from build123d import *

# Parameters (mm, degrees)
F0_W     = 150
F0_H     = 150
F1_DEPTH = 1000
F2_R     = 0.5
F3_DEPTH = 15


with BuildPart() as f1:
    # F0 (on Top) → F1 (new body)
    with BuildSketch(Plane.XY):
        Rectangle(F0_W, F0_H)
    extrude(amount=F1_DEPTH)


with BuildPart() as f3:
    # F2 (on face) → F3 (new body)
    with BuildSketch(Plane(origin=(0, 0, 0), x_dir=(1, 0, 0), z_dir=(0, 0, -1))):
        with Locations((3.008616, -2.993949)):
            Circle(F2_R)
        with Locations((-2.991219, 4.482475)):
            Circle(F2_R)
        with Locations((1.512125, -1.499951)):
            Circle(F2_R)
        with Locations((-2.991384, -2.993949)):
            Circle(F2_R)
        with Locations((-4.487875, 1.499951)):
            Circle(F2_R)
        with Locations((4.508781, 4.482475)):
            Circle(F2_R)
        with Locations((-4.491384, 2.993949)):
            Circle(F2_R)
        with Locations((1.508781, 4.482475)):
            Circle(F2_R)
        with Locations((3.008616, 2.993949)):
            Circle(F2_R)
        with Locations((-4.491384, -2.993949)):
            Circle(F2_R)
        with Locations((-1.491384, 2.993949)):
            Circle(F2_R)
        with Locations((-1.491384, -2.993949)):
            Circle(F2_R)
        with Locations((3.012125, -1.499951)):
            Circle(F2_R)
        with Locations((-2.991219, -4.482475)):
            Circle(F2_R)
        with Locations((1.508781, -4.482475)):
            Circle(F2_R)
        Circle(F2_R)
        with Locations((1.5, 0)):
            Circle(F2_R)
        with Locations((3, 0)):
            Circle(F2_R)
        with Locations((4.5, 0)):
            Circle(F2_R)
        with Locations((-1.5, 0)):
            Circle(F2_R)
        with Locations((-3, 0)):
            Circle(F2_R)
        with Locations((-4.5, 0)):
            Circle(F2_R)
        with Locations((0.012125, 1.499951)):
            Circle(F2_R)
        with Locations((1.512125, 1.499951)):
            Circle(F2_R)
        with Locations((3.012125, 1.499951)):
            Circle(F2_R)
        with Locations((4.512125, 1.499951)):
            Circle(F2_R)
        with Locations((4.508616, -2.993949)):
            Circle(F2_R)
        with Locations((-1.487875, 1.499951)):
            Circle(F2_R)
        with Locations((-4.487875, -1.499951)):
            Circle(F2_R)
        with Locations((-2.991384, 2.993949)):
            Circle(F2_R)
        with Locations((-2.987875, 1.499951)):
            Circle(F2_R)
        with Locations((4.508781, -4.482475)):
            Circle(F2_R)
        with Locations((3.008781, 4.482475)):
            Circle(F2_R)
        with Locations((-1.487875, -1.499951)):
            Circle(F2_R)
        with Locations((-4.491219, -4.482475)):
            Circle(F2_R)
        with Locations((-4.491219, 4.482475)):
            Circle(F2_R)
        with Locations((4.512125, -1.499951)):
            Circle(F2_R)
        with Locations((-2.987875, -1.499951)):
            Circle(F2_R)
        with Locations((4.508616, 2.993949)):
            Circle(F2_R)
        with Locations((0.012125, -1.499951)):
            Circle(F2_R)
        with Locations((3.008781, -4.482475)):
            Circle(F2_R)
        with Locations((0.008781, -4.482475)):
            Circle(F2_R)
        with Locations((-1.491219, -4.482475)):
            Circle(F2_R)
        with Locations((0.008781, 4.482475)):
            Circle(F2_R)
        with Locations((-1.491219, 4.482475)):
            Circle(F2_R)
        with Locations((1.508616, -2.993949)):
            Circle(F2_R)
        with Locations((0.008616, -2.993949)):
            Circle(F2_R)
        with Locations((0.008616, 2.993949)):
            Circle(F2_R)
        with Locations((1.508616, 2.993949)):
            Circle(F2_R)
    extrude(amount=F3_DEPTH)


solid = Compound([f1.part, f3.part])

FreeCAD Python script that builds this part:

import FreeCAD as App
import Part
import Sketcher

V = App.Vector

doc = App.newDocument("Part")
params = doc.addObject("Spreadsheet::Sheet", "Params")
for row, (alias, value) in enumerate([
    ("sketch1_width", "150 mm"),
    ("pad1_length", "1000 mm"),
    ("sketch2_diameter", "1 mm"),
    ("pad2_length", "15 mm"),
], start=1):
    params.set(f"A{row}", alias)
    params.set(f"B{row}", "=" + value)
    params.setAlias(f"B{row}", alias)

body = doc.addObject("PartDesign::Body", "Body")

# Sketch on XY plane
sketch1 = body.newObject("Sketcher::SketchObject", "Sketch")
sketch1.AttachmentSupport = (doc.getObject("XY_Plane"), [""])
sketch1.MapMode = "FlatFace"
sketch1.addGeometry([
    Part.LineSegment(V(-75, 75, 0), V(-75, -75, 0)),
    Part.LineSegment(V(-75, -75, 0), V(75, -75, 0)),
    Part.LineSegment(V(75, -75, 0), V(75, 75, 0)),
    Part.LineSegment(V(75, 75, 0), V(-75, 75, 0)),
], False)
sketch1.addConstraint([
    Sketcher.Constraint("Coincident", 0, 2, 1, 1),
    Sketcher.Constraint("Coincident", 1, 2, 2, 1),
    Sketcher.Constraint("Coincident", 2, 2, 3, 1),
    Sketcher.Constraint("Coincident", 3, 2, 0, 1),
    Sketcher.Constraint("Vertical", 0),
    Sketcher.Constraint("Horizontal", 1),
    Sketcher.Constraint("Vertical", 2),
    Sketcher.Constraint("Horizontal", 3),
    Sketcher.Constraint("Symmetric", 0, 2, 2, 2, -1, 1),
    Sketcher.Constraint("Equal", 3, 0),
    Sketcher.Constraint("DistanceX", 1, 1, 1, 2, 150.0),
])
sketch1.setExpression("Constraints[10]", "Params.sketch1_width")
pad1 = body.newObject("PartDesign::Pad", "Pad")
pad1.Profile = sketch1
pad1.setExpression("Length", "Params.pad1_length")
body2 = doc.addObject("PartDesign::Body", "Body001")
body2.AllowCompound = True

# Sketch on XY plane
sketch2 = body2.newObject("Sketcher::SketchObject", "Sketch001")
sketch2.AttachmentSupport = (doc.getObject("XY_Plane001"), [""])
sketch2.MapMode = "FlatFace"
sketch2.addGeometry([
    Part.Circle(V(3, 3, 0), V(0, 0, 1), 0.5),  # 0
    Part.Circle(V(-3, -4.5, 0), V(0, 0, 1), 0.5),  # 1
    Part.Circle(V(1.5, 1.5, 0), V(0, 0, 1), 0.5),  # 2
    Part.Circle(V(-3, 3, 0), V(0, 0, 1), 0.5),  # 3
    Part.Circle(V(-4.5, -1.5, 0), V(0, 0, 1), 0.5),  # 4
    Part.Circle(V(4.5, -4.5, 0), V(0, 0, 1), 0.5),  # 5
    Part.Circle(V(-4.5, -3, 0), V(0, 0, 1), 0.5),  # 6
    Part.Circle(V(1.5, -4.5, 0), V(0, 0, 1), 0.5),  # 7
    Part.Circle(V(3, -3, 0), V(0, 0, 1), 0.5),  # 8
    Part.Circle(V(-4.5, 3, 0), V(0, 0, 1), 0.5),  # 9
    Part.Circle(V(-1.5, -3, 0), V(0, 0, 1), 0.5),  # 10
    Part.Circle(V(-1.5, 3, 0), V(0, 0, 1), 0.5),  # 11
    Part.Circle(V(3, 1.5, 0), V(0, 0, 1), 0.5),  # 12
    Part.Circle(V(-3, 4.5, 0), V(0, 0, 1), 0.5),  # 13
    Part.Circle(V(1.5, 4.5, 0), V(0, 0, 1), 0.5),  # 14
    Part.Circle(V(0, 0, 0), V(0, 0, 1), 0.5),  # 15
    Part.Circle(V(1.5, 0, 0), V(0, 0, 1), 0.5),  # 16
    Part.Circle(V(3, 0, 0), V(0, 0, 1), 0.5),  # 17
    Part.Circle(V(4.5, 0, 0), V(0, 0, 1), 0.5),  # 18
    Part.Circle(V(-1.5, 0, 0), V(0, 0, 1), 0.5),  # 19
    Part.Circle(V(-3, 0, 0), V(0, 0, 1), 0.5),  # 20
    Part.Circle(V(-4.5, 0, 0), V(0, 0, 1), 0.5),  # 21
    Part.Circle(V(0, -1.5, 0), V(0, 0, 1), 0.5),  # 22
    Part.Circle(V(1.5, -1.5, 0), V(0, 0, 1), 0.5),  # 23
    Part.Circle(V(3, -1.5, 0), V(0, 0, 1), 0.5),  # 24
    Part.Circle(V(4.5, -1.5, 0), V(0, 0, 1), 0.5),  # 25
    Part.Circle(V(4.5, 3, 0), V(0, 0, 1), 0.5),  # 26
    Part.Circle(V(-1.5, -1.5, 0), V(0, 0, 1), 0.5),  # 27
    Part.Circle(V(-4.5, 1.5, 0), V(0, 0, 1), 0.5),  # 28
    Part.Circle(V(-3, -3, 0), V(0, 0, 1), 0.5),  # 29
    Part.Circle(V(-3, -1.5, 0), V(0, 0, 1), 0.5),  # 30
    Part.Circle(V(4.5, 4.5, 0), V(0, 0, 1), 0.5),  # 31
    Part.Circle(V(3, -4.5, 0), V(0, 0, 1), 0.5),  # 32
    Part.Circle(V(-1.5, 1.5, 0), V(0, 0, 1), 0.5),  # 33
    Part.Circle(V(-4.5, 4.5, 0), V(0, 0, 1), 0.5),  # 34
    Part.Circle(V(-4.5, -4.5, 0), V(0, 0, 1), 0.5),  # 35
    Part.Circle(V(4.5, 1.5, 0), V(0, 0, 1), 0.5),  # 36
    Part.Circle(V(-3, 1.5, 0), V(0, 0, 1), 0.5),  # 37
    Part.Circle(V(4.5, -3, 0), V(0, 0, 1), 0.5),  # 38
    Part.Circle(V(0, 1.5, 0), V(0, 0, 1), 0.5),  # 39
    Part.Circle(V(3, 4.5, 0), V(0, 0, 1), 0.5),  # 40
    Part.Circle(V(0, 4.5, 0), V(0, 0, 1), 0.5),  # 41
    Part.Circle(V(-1.5, 4.5, 0), V(0, 0, 1), 0.5),  # 42
    Part.Circle(V(0, -4.5, 0), V(0, 0, 1), 0.5),  # 43
    Part.Circle(V(-1.5, -4.5, 0), V(0, 0, 1), 0.5),  # 44
    Part.Circle(V(1.5, 3, 0), V(0, 0, 1), 0.5),  # 45
    Part.Circle(V(0, 3, 0), V(0, 0, 1), 0.5),  # 46
    Part.Circle(V(0, -3, 0), V(0, 0, 1), 0.5),  # 47
    Part.Circle(V(1.5, -3, 0), V(0, 0, 1), 0.5),  # 48
], False)
sketch2.addConstraint([
    Sketcher.Constraint("Coincident", 15, 3, -1, 1),
    Sketcher.Constraint("Equal", 0, 1),
    Sketcher.Constraint("Equal", 1, 2),
    Sketcher.Constraint("Equal", 2, 3),
    Sketcher.Constraint("Equal", 3, 4),
    Sketcher.Constraint("Equal", 4, 5),
    Sketcher.Constraint("Equal", 5, 6),
    Sketcher.Constraint("Equal", 6, 7),
    Sketcher.Constraint("Equal", 7, 8),
    Sketcher.Constraint("Equal", 8, 9),
    Sketcher.Constraint("Equal", 9, 10),
    Sketcher.Constraint("Equal", 10, 11),
    Sketcher.Constraint("Equal", 11, 12),
    Sketcher.Constraint("Equal", 12, 13),
    Sketcher.Constraint("Equal", 13, 14),
    Sketcher.Constraint("Equal", 14, 15),
    Sketcher.Constraint("Equal", 15, 16),
    Sketcher.Constraint("Equal", 16, 17),
    Sketcher.Constraint("Equal", 17, 18),
    Sketcher.Constraint("Equal", 18, 19),
    Sketcher.Constraint("Equal", 19, 20),
    Sketcher.Constraint("Equal", 20, 21),
    Sketcher.Constraint("Equal", 21, 22),
    Sketcher.Constraint("Equal", 22, 23),
    Sketcher.Constraint("Equal", 23, 24),
    Sketcher.Constraint("Equal", 24, 25),
    Sketcher.Constraint("Equal", 25, 26),
    Sketcher.Constraint("Equal", 26, 27),
    Sketcher.Constraint("Equal", 27, 28),
    Sketcher.Constraint("Equal", 28, 29),
    Sketcher.Constraint("Equal", 29, 30),
    Sketcher.Constraint("Equal", 30, 31),
    Sketcher.Constraint("Equal", 31, 32),
    Sketcher.Constraint("Equal", 32, 33),
    Sketcher.Constraint("Equal", 33, 34),
    Sketcher.Constraint("Equal", 34, 35),
    Sketcher.Constraint("Equal", 35, 36),
    Sketcher.Constraint("Equal", 36, 37),
    Sketcher.Constraint("Equal", 37, 38),
    Sketcher.Constraint("Equal", 38, 39),
    Sketcher.Constraint("Equal", 39, 40),
    Sketcher.Constraint("Equal", 40, 41),
    Sketcher.Constraint("Equal", 41, 42),
    Sketcher.Constraint("Equal", 42, 43),
    Sketcher.Constraint("Equal", 43, 44),
    Sketcher.Constraint("Equal", 44, 45),
    Sketcher.Constraint("Equal", 45, 46),
    Sketcher.Constraint("Equal", 46, 47),
    Sketcher.Constraint("Equal", 47, 48),
    Sketcher.Constraint("Symmetric", 16, 3, 19, 3, -1, 1),
    Sketcher.Constraint("Symmetric", 17, 3, 20, 3, -1, 1),
    Sketcher.Constraint("Symmetric", 18, 3, 21, 3, -1, 1),
    Sketcher.Constraint("Symmetric", 0, 3, 8, 3, -1),
    Sketcher.Constraint("Symmetric", 6, 3, 9, 3, -1),
    Sketcher.Constraint("Symmetric", 10, 3, 11, 3, -1),
    Sketcher.Constraint("Symmetric", 1, 3, 13, 3, -1),
    Sketcher.Constraint("Symmetric", 7, 3, 14, 3, -1),
    Sketcher.Constraint("Symmetric", 2, 3, 23, 3, -1),
    Sketcher.Constraint("Symmetric", 12, 3, 24, 3, -1),
    Sketcher.Constraint("Symmetric", 4, 3, 28, 3, -1),
    Sketcher.Constraint("Symmetric", 3, 3, 29, 3, -1),
    Sketcher.Constraint("Symmetric", 5, 3, 31, 3, -1),
    Sketcher.Constraint("Symmetric", 27, 3, 33, 3, -1),
    Sketcher.Constraint("Symmetric", 34, 3, 35, 3, -1),
    Sketcher.Constraint("Symmetric", 25, 3, 36, 3, -1),
    Sketcher.Constraint("Symmetric", 30, 3, 37, 3, -1),
    Sketcher.Constraint("Symmetric", 26, 3, 38, 3, -1),
    Sketcher.Constraint("Symmetric", 22, 3, 39, 3, -1),
    Sketcher.Constraint("Symmetric", 32, 3, 40, 3, -1),
    Sketcher.Constraint("Symmetric", 41, 3, 43, 3, -1),
    Sketcher.Constraint("Symmetric", 42, 3, 44, 3, -1),
    Sketcher.Constraint("Symmetric", 46, 3, 47, 3, -1),
    Sketcher.Constraint("Symmetric", 45, 3, 48, 3, -1),
    Sketcher.Constraint("PointOnObject", 16, 3, -1),
    Sketcher.Constraint("PointOnObject", 17, 3, -1),
    Sketcher.Constraint("PointOnObject", 18, 3, -1),
    Sketcher.Constraint("Horizontal", 0, 3, 3, 3),
    Sketcher.Constraint("Horizontal", 1, 3, 5, 3),
    Sketcher.Constraint("Horizontal", 5, 3, 7, 3),
    Sketcher.Constraint("Horizontal", 6, 3, 8, 3),
    Sketcher.Constraint("Horizontal", 8, 3, 10, 3),
    Sketcher.Constraint("Horizontal", 2, 3, 12, 3),
    Sketcher.Constraint("Horizontal", 4, 3, 22, 3),
    Sketcher.Constraint("Horizontal", 22, 3, 23, 3),
    Sketcher.Constraint("Horizontal", 24, 3, 25, 3),
    Sketcher.Constraint("Horizontal", 11, 3, 26, 3),
    Sketcher.Constraint("Horizontal", 25, 3, 27, 3),
    Sketcher.Constraint("Horizontal", 27, 3, 30, 3),
    Sketcher.Constraint("Horizontal", 7, 3, 32, 3),
    Sketcher.Constraint("Horizontal", 31, 3, 34, 3),
    Sketcher.Constraint("Horizontal", 40, 3, 41, 3),
    Sketcher.Constraint("Horizontal", 41, 3, 42, 3),
    Sketcher.Constraint("Horizontal", 26, 3, 45, 3),
    Sketcher.Constraint("Horizontal", 45, 3, 46, 3),
    Sketcher.Constraint("Diameter", 0, 1.0),
    Sketcher.Constraint("DistanceX", -1, 1, 17, 3, 3.0),
    Sketcher.Constraint("DistanceX", 3, 3, 0, 3, 6.0),
    Sketcher.Constraint("DistanceX", 4, 3, 2, 3, 6.0),
    Sketcher.Constraint("DistanceX", 7, 3, 5, 3, 3.0),
    Sketcher.Constraint("DistanceX", 6, 3, 10, 3, 3.0),
    Sketcher.Constraint("DistanceX", 16, 3, 18, 3, 3.0),
    Sketcher.Constraint("DistanceX", 19, 3, 16, 3, 3.0),
    Sketcher.Constraint("DistanceX", 13, 3, 41, 3, 3.0),
    Sketcher.Constraint("DistanceX", 41, 3, 40, 3, 3.0),
    Sketcher.Constraint("DistanceX", 1, 3, 5, 3, 7.5),
    Sketcher.Constraint("DistanceX", 6, 3, 3, 3, 1.5),
    Sketcher.Constraint("DistanceX", 2, 3, 12, 3, 1.5),
    Sketcher.Constraint("DistanceX", 22, 3, 23, 3, 1.5),
    Sketcher.Constraint("DistanceX", 24, 3, 25, 3, 1.5),
    Sketcher.Constraint("DistanceX", 0, 3, 26, 3, 1.5),
    Sketcher.Constraint("DistanceX", 27, 3, 22, 3, 1.5),
    Sketcher.Constraint("DistanceX", 30, 3, 27, 3, 1.5),
    Sketcher.Constraint("DistanceX", 34, 3, 13, 3, 1.5),
    Sketcher.Constraint("DistanceX", 13, 3, 42, 3, 1.5),
    Sketcher.Constraint("DistanceX", 45, 3, 0, 3, 1.5),
    Sketcher.Constraint("DistanceX", 11, 3, 46, 3, 1.5),
    Sketcher.Constraint("DistanceY", 2, 3, 0, 3, 1.493998),
    Sketcher.Constraint("DistanceY", 4, 3, 3, 3, 4.4939),
    Sketcher.Constraint("DistanceX", 1, 3, -1, 1, 2.991219),
    Sketcher.Constraint("DistanceX", 2, 3, 0, 3, 1.496491),
    Sketcher.Constraint("DistanceX", -1, 1, 0, 3, 3.008616),
    Sketcher.Constraint("DistanceY", 1, 3, -1, 1, 4.482475),
])
sketch2.setExpression("Constraints[94]", "Params.sketch2_diameter")
pad2 = body2.newObject("PartDesign::Pad", "Pad001")
pad2.Profile = sketch2
pad2.setExpression("Length", "Params.pad2_length")
pad2.Reversed = True

doc.recompute()
